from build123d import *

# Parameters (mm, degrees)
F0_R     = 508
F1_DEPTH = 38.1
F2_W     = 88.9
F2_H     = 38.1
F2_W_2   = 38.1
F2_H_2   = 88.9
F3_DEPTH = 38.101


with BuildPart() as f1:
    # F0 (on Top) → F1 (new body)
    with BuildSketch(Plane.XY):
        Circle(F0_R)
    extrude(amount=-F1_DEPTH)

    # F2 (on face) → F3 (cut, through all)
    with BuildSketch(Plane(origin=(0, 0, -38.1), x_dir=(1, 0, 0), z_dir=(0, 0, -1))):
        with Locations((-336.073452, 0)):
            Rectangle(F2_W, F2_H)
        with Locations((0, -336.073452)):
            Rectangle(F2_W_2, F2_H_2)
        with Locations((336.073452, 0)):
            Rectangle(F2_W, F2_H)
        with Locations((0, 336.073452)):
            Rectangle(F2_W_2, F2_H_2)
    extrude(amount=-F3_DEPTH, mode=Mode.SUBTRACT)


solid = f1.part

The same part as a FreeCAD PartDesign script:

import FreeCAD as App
import Part
import Sketcher
Q = App.Units.Quantity


def add_polygon(sketch, points):
    """Adds a closed chain of lines whose ends are joined by coincident constraints."""
    first, n = sketch.GeometryCount, len(points)
    for a, b in zip(points, points[1:] + points[:1]):
        sketch.addGeometry(Part.LineSegment(App.Vector(*a, 0), App.Vector(*b, 0)), False)
    for i in range(n):
        sketch.addConstraint(Sketcher.Constraint("Coincident", first + i, 2, first + (i + 1) % n, 1))

doc = App.newDocument("Part")
body = doc.addObject("PartDesign::Body", "Body")

# Sketch on XY plane
sketch1 = doc.addObject("Sketcher::SketchObject", "Sketch")
body.addObject(sketch1)
sketch1.AttachmentSupport = (doc.XY_Plane, [""])
sketch1.MapMode = "FlatFace"
sketch1.addGeometry(Part.Circle(App.Vector(0, 0, 0), App.Vector(0, 0, 1), 508), False)
sketch1.addConstraint([
    Sketcher.Constraint("Coincident", 0, 3, -1, 1),
    Sketcher.Constraint("Diameter", 0, Q("40 in")),
])
pad1 = doc.addObject("PartDesign::Pad", "Pad")
body.addObject(pad1)
pad1.Profile = sketch1
pad1.Length = Q("1.5 in")
pad1.Reversed = True

# Sketch on XY plane
sketch2 = doc.addObject("Sketcher::SketchObject", "Sketch001")
body.addObject(sketch2)
sketch2.AttachmentSupport = (doc.XY_Plane, [""])
sketch2.MapMode = "FlatFace"
sketch2.AttachmentOffset = App.Placement(App.Vector(0, 0, -1.5 * 25.4), App.Rotation())
add_polygon(sketch2, [(-380.523452, -19.05), (-380.523452, 19.05), (-291.623452, 19.05), (-291.623452, -19.05)])  # lines 0-3
add_polygon(sketch2, [(-19.05, 291.623452), (-19.05, 380.523452), (19.05, 380.523452), (19.05, 291.623452)])  # lines 4-7
add_polygon(sketch2, [(291.623452, -19.05), (291.623452, 19.05), (380.523452, 19.05), (380.523452, -19.05)])  # lines 8-11
add_polygon(sketch2, [(-19.05, -380.523452), (-19.05, -291.623452), (19.05, -291.623452), (19.05, -380.523452)])  # lines 12-15
sketch2.addConstraint([
    Sketcher.Constraint("Vertical", 0),
    Sketcher.Constraint("Horizontal", 1),
    Sketcher.Constraint("Vertical", 2),
    Sketcher.Constraint("Horizontal", 3),
    Sketcher.Constraint("Vertical", 4),
    Sketcher.Constraint("Horizontal", 5),
    Sketcher.Constraint("Vertical", 6),
    Sketcher.Constraint("Horizontal", 7),
    Sketcher.Constraint("Vertical", 8),
    Sketcher.Constraint("Horizontal", 9),
    Sketcher.Constraint("Vertical", 10),
    Sketcher.Constraint("Horizontal", 11),
    Sketcher.Constraint("Vertical", 12),
    Sketcher.Constraint("Horizontal", 13),
    Sketcher.Constraint("Vertical", 14),
    Sketcher.Constraint("Horizontal", 15),
    Sketcher.Constraint("Symmetric", 2, 2, 8, 2, -1, 1),
    Sketcher.Constraint("Symmetric", 0, 2, 10, 2, -1, 1),
    Sketcher.Constraint("Symmetric", 6, 2, 12, 2, -1, 1),
    Sketcher.Constraint("Symmetric", 4, 2, 14, 2, -1, 1),
    Sketcher.Constraint("Horizontal", 1, 2, 8, 2),
    Sketcher.Constraint("Vertical", 7, 2, 12, 2),
    Sketcher.Constraint("Equal", 15, 0),
    Sketcher.Constraint("Equal", 11, 4),
    Sketcher.Constraint("DistanceX", 1, 1, 1, 2, Q("3.5 in")),
    Sketcher.Constraint("DistanceX", 5, 1, 5, 2, Q("1.5 in")),
    Sketcher.Constraint("DistanceX", 0, 2, -1, 1, 380.523452),
    Sketcher.Constraint("DistanceY", -1, 1, 4, 2, 380.523452),
])
pocket1 = doc.addObject("PartDesign::Pocket", "Pocket")
body.addObject(pocket1)
pocket1.Profile = sketch2
pocket1.Type = "ThroughAll"
pocket1.Reversed = True

doc.recompute()
